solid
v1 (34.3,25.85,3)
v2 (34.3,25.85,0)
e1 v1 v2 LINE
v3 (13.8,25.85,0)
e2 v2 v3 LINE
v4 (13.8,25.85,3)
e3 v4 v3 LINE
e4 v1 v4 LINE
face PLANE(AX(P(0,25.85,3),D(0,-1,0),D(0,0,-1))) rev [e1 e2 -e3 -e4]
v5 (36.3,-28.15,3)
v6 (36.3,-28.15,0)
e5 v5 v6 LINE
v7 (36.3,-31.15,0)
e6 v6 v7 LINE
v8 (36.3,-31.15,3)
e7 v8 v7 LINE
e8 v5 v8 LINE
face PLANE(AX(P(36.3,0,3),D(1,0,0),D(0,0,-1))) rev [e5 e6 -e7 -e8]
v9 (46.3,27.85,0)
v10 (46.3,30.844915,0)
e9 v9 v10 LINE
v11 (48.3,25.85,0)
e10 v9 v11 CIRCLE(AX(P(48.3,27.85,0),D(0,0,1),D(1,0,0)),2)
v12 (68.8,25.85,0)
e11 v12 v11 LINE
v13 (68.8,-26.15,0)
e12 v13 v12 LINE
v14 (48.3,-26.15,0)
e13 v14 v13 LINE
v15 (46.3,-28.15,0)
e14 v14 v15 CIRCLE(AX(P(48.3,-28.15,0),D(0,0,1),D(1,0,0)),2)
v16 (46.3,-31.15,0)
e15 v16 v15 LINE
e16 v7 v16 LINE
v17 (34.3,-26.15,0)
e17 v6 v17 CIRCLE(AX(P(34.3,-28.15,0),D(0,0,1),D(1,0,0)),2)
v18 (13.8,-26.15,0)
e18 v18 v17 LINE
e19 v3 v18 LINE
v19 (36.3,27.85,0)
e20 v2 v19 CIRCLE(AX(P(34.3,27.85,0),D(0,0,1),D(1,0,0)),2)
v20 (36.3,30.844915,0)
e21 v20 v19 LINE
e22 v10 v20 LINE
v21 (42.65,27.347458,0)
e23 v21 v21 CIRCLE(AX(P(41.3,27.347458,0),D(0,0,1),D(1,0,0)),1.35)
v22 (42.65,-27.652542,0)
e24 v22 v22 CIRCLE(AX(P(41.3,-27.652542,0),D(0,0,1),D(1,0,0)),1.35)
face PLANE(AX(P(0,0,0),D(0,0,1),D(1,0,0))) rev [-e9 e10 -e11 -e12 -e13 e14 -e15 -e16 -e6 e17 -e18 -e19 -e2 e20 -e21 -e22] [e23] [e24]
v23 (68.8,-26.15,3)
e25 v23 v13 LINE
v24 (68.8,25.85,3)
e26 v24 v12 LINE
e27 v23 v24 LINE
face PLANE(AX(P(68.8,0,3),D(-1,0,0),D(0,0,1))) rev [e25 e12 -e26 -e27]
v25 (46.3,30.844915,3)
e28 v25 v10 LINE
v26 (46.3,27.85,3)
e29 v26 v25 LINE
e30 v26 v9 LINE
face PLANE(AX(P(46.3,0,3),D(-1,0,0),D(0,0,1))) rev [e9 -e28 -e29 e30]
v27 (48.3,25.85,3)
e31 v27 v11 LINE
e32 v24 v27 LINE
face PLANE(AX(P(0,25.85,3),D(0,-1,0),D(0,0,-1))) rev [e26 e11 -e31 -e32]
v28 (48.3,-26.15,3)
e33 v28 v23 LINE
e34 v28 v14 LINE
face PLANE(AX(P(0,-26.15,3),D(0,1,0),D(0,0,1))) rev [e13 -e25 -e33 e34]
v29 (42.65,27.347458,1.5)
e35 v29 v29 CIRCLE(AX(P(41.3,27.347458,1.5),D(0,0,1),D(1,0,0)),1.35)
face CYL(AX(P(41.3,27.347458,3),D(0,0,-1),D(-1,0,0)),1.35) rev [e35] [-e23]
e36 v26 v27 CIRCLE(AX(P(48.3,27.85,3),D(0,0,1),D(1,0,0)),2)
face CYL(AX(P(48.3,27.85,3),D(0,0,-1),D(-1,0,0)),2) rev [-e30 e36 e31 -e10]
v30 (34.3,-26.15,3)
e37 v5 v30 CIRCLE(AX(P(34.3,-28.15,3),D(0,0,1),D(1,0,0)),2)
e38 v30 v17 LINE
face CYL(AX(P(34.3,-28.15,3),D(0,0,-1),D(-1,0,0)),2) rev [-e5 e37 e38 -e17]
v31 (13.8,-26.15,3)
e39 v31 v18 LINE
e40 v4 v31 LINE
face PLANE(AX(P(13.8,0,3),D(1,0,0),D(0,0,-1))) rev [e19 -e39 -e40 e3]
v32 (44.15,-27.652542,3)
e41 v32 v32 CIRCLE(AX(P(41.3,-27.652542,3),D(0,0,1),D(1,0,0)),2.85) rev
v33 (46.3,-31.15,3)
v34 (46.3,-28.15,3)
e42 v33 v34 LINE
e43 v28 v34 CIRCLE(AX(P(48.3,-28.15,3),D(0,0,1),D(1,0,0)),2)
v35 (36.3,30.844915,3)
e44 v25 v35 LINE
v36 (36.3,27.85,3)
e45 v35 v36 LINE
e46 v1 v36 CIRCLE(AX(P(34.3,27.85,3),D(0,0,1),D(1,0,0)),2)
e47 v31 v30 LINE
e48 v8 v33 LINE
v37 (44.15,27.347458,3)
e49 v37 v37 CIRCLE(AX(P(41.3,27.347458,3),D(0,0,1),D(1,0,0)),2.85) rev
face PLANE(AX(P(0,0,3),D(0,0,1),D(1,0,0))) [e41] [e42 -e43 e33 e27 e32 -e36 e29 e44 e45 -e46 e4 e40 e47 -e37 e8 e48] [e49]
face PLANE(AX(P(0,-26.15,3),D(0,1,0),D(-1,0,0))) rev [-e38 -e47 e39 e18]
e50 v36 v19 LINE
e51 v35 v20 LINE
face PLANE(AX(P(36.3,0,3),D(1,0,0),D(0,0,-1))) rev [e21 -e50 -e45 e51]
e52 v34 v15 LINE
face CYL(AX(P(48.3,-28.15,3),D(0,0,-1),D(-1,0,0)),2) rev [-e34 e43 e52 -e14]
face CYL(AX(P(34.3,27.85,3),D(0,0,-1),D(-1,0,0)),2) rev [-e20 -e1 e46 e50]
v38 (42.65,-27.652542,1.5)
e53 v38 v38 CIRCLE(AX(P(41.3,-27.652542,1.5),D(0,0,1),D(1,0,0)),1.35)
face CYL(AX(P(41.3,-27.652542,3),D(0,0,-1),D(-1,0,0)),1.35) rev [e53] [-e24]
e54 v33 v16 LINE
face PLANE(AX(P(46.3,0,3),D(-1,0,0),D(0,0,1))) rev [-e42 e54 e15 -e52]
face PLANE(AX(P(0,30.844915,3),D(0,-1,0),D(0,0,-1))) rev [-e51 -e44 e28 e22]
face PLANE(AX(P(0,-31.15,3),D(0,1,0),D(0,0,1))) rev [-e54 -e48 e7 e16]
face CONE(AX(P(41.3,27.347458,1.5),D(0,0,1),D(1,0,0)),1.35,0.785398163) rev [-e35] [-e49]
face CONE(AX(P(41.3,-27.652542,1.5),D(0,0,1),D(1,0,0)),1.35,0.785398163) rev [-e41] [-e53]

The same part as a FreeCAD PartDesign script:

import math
import FreeCAD as App
import Part
import Sketcher
from FreeCAD import Vector
Q = App.Units.Quantity


def edges_at(feature, points):
    """Names of the edges that pass closest to the given points."""
    edges = feature.Shape.Edges
    near = lambda p: min(range(len(edges)), key=lambda i: edges[i].distToShape(Part.Vertex(*p))[0])
    return sorted({f"Edge{near(p) + 1}" for p in points})

doc = App.newDocument("Part")
params = doc.addObject("Spreadsheet::Sheet", "Params")
for row, (alias, value) in enumerate([
    ("sketch1_radius", "2 mm"),
    ("sketch1_diameter", "2.7 mm"),
    ("sketch1_width", "10 mm"),
    ("sketch1_height", "52 mm"),
    ("sketch1_height2", "3 mm"),
    ("pad1_length", "3 mm"),
    ("chamfer_size", "1.5 mm"),
], start=1):
    params.set(f"A{row}", alias)
    params.set(f"B{row}", "=" + value)
    params.setAlias(f"B{row}", alias)

body = doc.addObject("PartDesign::Body", "Body")

sketch1 = doc.addObject("Sketcher::SketchObject", "Sketch")
body.addObject(sketch1)
sketch1.AttachmentSupport = (doc.XY_Plane, [""])
sketch1.MapMode = "FlatFace"
sketch1.addGeometry([
    Part.LineSegment(Vector(68.8, 25.9, 0), Vector(48.3, 25.9, 0)),
    Part.ArcOfCircle(Part.Circle(Vector(48.3, 27.9, 0), Vector(0, 0, 1), 2), math.radians(-180), math.radians(-90)),
    Part.LineSegment(Vector(46.3, 27.9, 0), Vector(46.3, 30.8, 0)),
    Part.LineSegment(Vector(46.3, 30.8, 0), Vector(36.3, 30.8, 0)),
    Part.LineSegment(Vector(36.3, 30.8, 0), Vector(36.3, 27.9, 0)),
    Part.ArcOfCircle(Part.Circle(Vector(34.3, 27.9, 0), Vector(0, 0, 1), 2), math.radians(-90), math.radians(0)),
    Part.LineSegment(Vector(34.3, 25.9, 0), Vector(13.8, 25.9, 0)),
    Part.LineSegment(Vector(13.8, 25.9, 0), Vector(13.8, -26.1, 0)),
    Part.LineSegment(Vector(13.8, -26.1, 0), Vector(34.3, -26.1, 0)),
    Part.ArcOfCircle(Part.Circle(Vector(34.3, -28.2, 0), Vector(0, 0, 1), 2), math.radians(0), math.radians(90)),
    Part.LineSegment(Vector(36.3, -28.1, 0), Vector(36.3, -31.1, 0)),
    Part.LineSegment(Vector(36.3, -31.1, 0), Vector(46.3, -31.1, 0)),
    Part.LineSegment(Vector(46.3, -31.1, 0), Vector(46.3, -28.1, 0)),
    Part.ArcOfCircle(Part.Circle(Vector(48.3, -28.2, 0), Vector(0, 0, 1), 2), math.radians(90), math.radians(180)),
    Part.LineSegment(Vector(48.3, -26.1, 0), Vector(68.8, -26.1, 0)),
    Part.LineSegment(Vector(68.8, -26.1, 0), Vector(68.8, 25.9, 0)),
    Part.Circle(Vector(41.3, -27.7, 0), Vector(0, 0, 1), 1.4),
    Part.Circle(Vector(41.3, 27.3, 0), Vector(0, 0, 1), 1.4),
], False)
sketch1.addConstraint([
    Sketcher.Constraint("Tangent", 0, 2, 1, 2),
    Sketcher.Constraint("Tangent", 1, 1, 2, 1),
    Sketcher.Constraint("Coincident", 2, 2, 3, 1),
    Sketcher.Constraint("Coincident", 3, 2, 4, 1),
    Sketcher.Constraint("Tangent", 4, 2, 5, 2),
    Sketcher.Constraint("Tangent", 5, 1, 6, 1),
    Sketcher.Constraint("Coincident", 6, 2, 7, 1),
    Sketcher.Constraint("Coincident", 7, 2, 8, 1),
    Sketcher.Constraint("Tangent", 8, 2, 9, 2),
    Sketcher.Constraint("Tangent", 9, 1, 10, 1),
    Sketcher.Constraint("Coincident", 10, 2, 11, 1),
    Sketcher.Constraint("Coincident", 11, 2, 12, 1),
    Sketcher.Constraint("Tangent", 12, 2, 13, 2),
    Sketcher.Constraint("Tangent", 13, 1, 14, 1),
    Sketcher.Constraint("Coincident", 14, 2, 15, 1),
    Sketcher.Constraint("Coincident", 15, 2, 0, 1),
    Sketcher.Constraint("Horizontal", 0),
    Sketcher.Constraint("Vertical", 2),
    Sketcher.Constraint("Horizontal", 3),
    Sketcher.Constraint("Vertical", 4),
    Sketcher.Constraint("Horizontal", 6),
    Sketcher.Constraint("Vertical", 7),
    Sketcher.Constraint("Horizontal", 8),
    Sketcher.Constraint("Vertical", 10),
    Sketcher.Constraint("Horizontal", 11),
    Sketcher.Constraint("Vertical", 12),
    Sketcher.Constraint("Horizontal", 14),
    Sketcher.Constraint("Vertical", 15),
    Sketcher.Constraint("Equal", 1, 5),
    Sketcher.Constraint("Equal", 5, 9),
    Sketcher.Constraint("Equal", 9, 13),
    Sketcher.Constraint("Equal", 16, 17),
    Sketcher.Constraint("Horizontal", 1, 3, 5, 3),
    Sketcher.Constraint("Horizontal", 9, 3, 13, 3),
    Sketcher.Constraint("Vertical", 5, 3, 9, 3),
    Sketcher.Constraint("Vertical", 1, 3, 13, 3),
    Sketcher.Constraint("Vertical", 16, 3, 17, 3),
    Sketcher.Constraint("Equal", 0, 6),
    Sketcher.Constraint("Radius", 1, Q("2 mm")),
    Sketcher.Constraint("Diameter", 16, Q("2.7 mm")),
    Sketcher.Constraint("DistanceX", 3, 2, 3, 1, Q("10 mm")),
    Sketcher.Constraint("DistanceY", 7, 2, 7, 1, Q("52 mm")),
    Sketcher.Constraint("DistanceY", 10, 2, 10, 1, Q("3 mm")),
    Sketcher.Constraint("DistanceX", 0, 2, 0, 1, Q("20.5 mm")),
    Sketcher.Constraint("DistanceX", 9, 3, 16, 3, Q("7 mm")),
    Sketcher.Constraint("DistanceY", 16, 3, 17, 3, Q("55 mm")),
    Sketcher.Constraint("DistanceX", -1, 1, 1, 3, Q("48.3 mm")),
    Sketcher.Constraint("DistanceY", -1, 1, 1, 3, Q("27.85 mm")),
    Sketcher.Constraint("DistanceY", 2, 1, 2, 2, Q("2.994915 mm")),
    Sketcher.Constraint("DistanceY", 16, 3, -1, 1, Q("27.652542 mm")),
])
sketch1.setExpression("Constraints[38]", "Params.sketch1_radius")
sketch1.setExpression("Constraints[39]", "Params.sketch1_diameter")
sketch1.setExpression("Constraints[40]", "Params.sketch1_width")
sketch1.setExpression("Constraints[41]", "Params.sketch1_height")
sketch1.setExpression("Constraints[42]", "Params.sketch1_height2")
pad1 = doc.addObject("PartDesign::Pad", "Pad")
body.addObject(pad1)
pad1.Profile = sketch1
pad1.setExpression("Length", "Params.pad1_length")
doc.recompute()

chamfer = doc.addObject("PartDesign::Chamfer", "Chamfer")
body.addObject(chamfer)
chamfer.Base = (pad1, edges_at(pad1, [(39.95, -27.653, 3), (39.95, 27.347, 3)]))
chamfer.setExpression("Size", "Params.chamfer_size")

doc.recompute()
